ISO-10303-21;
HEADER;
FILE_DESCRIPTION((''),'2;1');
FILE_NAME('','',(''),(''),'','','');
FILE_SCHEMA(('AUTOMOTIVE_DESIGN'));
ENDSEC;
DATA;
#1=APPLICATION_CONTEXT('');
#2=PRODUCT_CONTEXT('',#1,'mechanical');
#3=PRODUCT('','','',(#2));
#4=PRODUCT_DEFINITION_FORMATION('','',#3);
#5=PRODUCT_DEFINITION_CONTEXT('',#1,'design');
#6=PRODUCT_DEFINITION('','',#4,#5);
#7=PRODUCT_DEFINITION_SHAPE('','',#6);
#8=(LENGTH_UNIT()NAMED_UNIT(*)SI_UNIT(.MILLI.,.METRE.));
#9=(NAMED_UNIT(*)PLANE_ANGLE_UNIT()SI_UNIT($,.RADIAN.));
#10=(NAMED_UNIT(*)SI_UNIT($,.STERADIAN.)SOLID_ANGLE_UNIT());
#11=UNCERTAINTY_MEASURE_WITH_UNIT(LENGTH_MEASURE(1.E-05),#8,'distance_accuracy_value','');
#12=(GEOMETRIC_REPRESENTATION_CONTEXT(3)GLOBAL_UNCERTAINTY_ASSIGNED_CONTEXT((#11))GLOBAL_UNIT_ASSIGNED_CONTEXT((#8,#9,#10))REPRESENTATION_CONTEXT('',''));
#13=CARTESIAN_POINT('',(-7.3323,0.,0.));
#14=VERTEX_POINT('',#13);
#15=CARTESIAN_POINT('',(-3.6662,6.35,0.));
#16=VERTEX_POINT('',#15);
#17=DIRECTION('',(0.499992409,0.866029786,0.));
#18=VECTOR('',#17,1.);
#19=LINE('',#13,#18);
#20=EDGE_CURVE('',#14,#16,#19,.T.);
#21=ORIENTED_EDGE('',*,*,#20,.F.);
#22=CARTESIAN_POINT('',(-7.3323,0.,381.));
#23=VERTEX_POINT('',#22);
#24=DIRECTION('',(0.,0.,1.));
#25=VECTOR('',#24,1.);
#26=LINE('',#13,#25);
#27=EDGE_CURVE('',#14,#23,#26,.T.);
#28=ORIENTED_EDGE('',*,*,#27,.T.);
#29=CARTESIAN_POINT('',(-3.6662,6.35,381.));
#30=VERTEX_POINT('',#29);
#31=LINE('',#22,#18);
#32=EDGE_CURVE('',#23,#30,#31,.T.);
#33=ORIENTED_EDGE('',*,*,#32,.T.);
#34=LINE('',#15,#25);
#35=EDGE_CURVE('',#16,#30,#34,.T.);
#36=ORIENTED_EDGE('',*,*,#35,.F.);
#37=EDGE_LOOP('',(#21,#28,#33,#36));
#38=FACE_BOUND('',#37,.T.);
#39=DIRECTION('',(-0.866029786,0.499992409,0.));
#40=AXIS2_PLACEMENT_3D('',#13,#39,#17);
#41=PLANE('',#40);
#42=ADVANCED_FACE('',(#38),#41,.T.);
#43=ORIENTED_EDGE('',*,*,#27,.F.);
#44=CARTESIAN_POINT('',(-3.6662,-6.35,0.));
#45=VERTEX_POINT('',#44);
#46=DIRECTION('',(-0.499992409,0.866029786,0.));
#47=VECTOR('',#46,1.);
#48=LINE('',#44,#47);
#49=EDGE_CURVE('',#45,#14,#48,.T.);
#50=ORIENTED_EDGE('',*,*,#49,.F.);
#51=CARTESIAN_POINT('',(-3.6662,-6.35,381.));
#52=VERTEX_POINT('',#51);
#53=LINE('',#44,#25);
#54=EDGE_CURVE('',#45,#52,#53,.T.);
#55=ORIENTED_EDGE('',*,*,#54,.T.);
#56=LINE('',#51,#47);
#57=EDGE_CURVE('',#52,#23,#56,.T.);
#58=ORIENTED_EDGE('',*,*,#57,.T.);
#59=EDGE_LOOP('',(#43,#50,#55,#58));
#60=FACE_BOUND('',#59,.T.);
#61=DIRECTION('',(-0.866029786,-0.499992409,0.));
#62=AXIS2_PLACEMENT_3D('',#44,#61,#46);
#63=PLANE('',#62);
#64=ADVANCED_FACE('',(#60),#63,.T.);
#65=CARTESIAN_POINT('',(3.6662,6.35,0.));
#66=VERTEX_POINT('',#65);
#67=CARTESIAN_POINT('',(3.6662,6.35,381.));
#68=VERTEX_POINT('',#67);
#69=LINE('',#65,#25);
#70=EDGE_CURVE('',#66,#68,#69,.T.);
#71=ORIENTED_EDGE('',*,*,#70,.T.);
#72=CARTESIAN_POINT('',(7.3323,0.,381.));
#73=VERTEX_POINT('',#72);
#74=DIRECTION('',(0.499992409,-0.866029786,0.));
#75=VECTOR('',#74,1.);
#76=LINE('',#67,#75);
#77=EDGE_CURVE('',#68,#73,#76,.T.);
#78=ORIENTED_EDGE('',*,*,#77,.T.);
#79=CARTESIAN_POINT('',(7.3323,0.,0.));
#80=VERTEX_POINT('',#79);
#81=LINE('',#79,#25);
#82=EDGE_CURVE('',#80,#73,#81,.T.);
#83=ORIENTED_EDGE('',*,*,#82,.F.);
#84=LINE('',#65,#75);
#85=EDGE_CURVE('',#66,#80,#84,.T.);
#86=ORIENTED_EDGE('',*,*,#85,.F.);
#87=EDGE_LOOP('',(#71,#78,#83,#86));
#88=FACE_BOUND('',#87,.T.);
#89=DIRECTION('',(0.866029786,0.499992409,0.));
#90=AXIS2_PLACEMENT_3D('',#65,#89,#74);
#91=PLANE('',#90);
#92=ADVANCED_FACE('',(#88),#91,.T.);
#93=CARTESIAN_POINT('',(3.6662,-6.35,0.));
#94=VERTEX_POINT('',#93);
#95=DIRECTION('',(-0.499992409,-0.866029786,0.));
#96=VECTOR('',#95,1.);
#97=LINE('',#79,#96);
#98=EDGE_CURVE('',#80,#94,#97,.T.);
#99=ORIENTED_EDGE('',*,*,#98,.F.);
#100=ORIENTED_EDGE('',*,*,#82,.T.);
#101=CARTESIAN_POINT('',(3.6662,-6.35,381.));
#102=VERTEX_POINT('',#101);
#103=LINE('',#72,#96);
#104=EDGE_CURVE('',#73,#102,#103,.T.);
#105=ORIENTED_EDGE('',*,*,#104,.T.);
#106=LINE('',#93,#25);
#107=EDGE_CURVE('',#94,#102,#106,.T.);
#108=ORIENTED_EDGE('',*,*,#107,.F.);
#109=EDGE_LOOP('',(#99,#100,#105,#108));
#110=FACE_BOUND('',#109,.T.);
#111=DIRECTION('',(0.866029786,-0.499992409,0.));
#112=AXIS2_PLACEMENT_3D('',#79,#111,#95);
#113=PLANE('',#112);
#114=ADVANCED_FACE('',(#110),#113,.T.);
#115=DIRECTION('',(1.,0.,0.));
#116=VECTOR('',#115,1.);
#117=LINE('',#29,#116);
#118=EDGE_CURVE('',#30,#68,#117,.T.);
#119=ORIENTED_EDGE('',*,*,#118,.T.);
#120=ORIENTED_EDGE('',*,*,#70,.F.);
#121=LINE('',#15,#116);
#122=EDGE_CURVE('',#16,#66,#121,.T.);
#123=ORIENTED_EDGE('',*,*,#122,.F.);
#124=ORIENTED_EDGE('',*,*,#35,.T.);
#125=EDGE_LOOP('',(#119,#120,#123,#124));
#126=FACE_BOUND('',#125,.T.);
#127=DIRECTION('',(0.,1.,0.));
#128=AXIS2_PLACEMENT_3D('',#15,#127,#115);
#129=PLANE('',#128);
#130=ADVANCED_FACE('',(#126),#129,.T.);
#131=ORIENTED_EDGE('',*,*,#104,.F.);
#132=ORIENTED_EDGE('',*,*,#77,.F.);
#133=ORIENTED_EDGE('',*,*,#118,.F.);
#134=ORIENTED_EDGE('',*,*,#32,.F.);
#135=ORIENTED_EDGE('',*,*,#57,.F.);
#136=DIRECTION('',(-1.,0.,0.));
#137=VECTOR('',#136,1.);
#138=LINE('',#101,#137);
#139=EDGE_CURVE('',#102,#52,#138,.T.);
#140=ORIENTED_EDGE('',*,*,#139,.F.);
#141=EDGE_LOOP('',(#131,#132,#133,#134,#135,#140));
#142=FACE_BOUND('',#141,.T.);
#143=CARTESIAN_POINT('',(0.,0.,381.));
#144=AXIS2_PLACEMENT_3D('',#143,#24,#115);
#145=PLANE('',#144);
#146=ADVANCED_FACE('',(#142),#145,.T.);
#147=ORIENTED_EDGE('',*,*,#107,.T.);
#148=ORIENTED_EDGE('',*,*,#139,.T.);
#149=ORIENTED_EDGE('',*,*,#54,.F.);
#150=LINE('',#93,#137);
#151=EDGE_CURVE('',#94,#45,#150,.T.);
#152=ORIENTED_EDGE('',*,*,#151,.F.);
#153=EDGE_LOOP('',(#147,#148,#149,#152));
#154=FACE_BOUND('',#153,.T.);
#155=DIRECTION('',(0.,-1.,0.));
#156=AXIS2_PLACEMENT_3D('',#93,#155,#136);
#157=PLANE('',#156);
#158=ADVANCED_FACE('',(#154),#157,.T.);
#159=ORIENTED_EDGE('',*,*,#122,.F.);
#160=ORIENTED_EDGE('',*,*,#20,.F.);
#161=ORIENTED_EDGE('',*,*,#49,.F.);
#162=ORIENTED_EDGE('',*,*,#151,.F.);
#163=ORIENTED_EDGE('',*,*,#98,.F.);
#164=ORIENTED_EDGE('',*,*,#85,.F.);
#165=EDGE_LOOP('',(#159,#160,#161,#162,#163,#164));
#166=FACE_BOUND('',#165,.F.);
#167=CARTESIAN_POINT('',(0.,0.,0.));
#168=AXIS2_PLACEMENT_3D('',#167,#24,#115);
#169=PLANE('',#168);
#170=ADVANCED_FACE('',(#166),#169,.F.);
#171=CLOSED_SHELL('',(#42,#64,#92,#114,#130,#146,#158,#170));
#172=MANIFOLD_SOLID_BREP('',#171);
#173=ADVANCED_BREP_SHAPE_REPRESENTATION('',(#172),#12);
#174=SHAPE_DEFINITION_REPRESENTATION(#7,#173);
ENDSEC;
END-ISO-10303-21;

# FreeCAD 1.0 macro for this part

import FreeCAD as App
import Part
import Sketcher
from FreeCAD import Vector
Q = App.Units.Quantity

doc = App.newDocument("Part")
body = doc.addObject("PartDesign::Body", "Body")

# Sketch on XY plane
sketch1 = doc.addObject("Sketcher::SketchObject", "Sketch")
body.addObject(sketch1)
sketch1.AttachmentSupport = (doc.XY_Plane, [""])
sketch1.MapMode = "FlatFace"
sketch1.addGeometry([
    Part.LineSegment(Vector(7, 0, 0), Vector(4, 6, 0)),  # 0
    Part.LineSegment(Vector(4, 6, 0), Vector(-4, 6, 0)),  # 1
    Part.LineSegment(Vector(-4, 6, 0), Vector(-7, 0, 0)),  # 2
    Part.LineSegment(Vector(-7, 0, 0), Vector(-4, -6, 0)),  # 3
    Part.LineSegment(Vector(-4, -6, 0), Vector(4, -6, 0)),  # 4
    Part.LineSegment(Vector(4, -6, 0), Vector(7, 0, 0)),  # 5
], False)
sketch1.addConstraint([
    Sketcher.Constraint("Coincident", 0, 2, 1, 1),
    Sketcher.Constraint("Coincident", 1, 2, 2, 1),
    Sketcher.Constraint("Coincident", 2, 2, 3, 1),
    Sketcher.Constraint("Coincident", 3, 2, 4, 1),
    Sketcher.Constraint("Coincident", 4, 2, 5, 1),
    Sketcher.Constraint("Coincident", 5, 2, 0, 1),
    Sketcher.Constraint("Horizontal", 1),
    Sketcher.Constraint("Horizontal", 4),
    Sketcher.Constraint("Symmetric", 0, 2, 3, 2, -1, 1),
    Sketcher.Constraint("Symmetric", 2, 2, 5, 2, -1, 1),
    Sketcher.Constraint("PointOnObject", 2, 2, -1),
    Sketcher.Constraint("Parallel", 2, 5),
    Sketcher.Constraint("Vertical", 1, 2, 3, 2),
    Sketcher.Constraint("DistanceY", 3, 2, 1, 2, Q("0.5 in")),
    Sketcher.Constraint("Angle", 0, Q("119.9995 deg")),
    Sketcher.Constraint("DistanceX", 2, 2, 0, 2, Q("0.433 in")),
])
pad1 = doc.addObject("PartDesign::Pad", "Pad")
body.addObject(pad1)
pad1.Profile = sketch1
pad1.Length = Q("15 in")

doc.recompute()
